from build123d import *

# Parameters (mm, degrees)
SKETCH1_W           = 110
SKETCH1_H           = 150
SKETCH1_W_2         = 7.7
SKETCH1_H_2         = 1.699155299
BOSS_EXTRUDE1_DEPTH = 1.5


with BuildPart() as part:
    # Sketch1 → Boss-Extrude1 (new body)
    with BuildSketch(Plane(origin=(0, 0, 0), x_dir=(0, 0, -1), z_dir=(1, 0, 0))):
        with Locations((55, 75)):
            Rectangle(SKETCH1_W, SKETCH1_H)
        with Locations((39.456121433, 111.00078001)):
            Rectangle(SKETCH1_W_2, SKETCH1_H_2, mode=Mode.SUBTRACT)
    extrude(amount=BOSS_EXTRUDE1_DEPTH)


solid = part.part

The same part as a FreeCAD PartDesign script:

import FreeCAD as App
import Part
import Sketcher
from FreeCAD import Vector
Q = App.Units.Quantity

doc = App.newDocument("Part")
params = doc.addObject("Spreadsheet::Sheet", "Params")
for row, (alias, value) in enumerate([
    ("sketch1_width", "150 mm"),
    ("sketch1_height", "110 mm"),
    ("sketch1_height2", "7.7 mm"),
    ("pad1_length", "1.5 mm"),
], start=1):
    params.set(f"A{row}", alias)
    params.set(f"B{row}", "=" + value)
    params.setAlias(f"B{row}", alias)

body = doc.addObject("PartDesign::Body", "Body")

# Sketch on YZ plane
sketch1 = body.newObject("Sketcher::SketchObject", "Sketch")
sketch1.AttachmentSupport = (doc.getObject("YZ_Plane"), [""])
sketch1.MapMode = "FlatFace"
sketch1.addGeometry([
    Part.LineSegment(Vector(150, 0, 0), Vector(0, 0, 0)),  # 0
    Part.LineSegment(Vector(0, 0, 0), Vector(0, -110, 0)),  # 1
    Part.LineSegment(Vector(0, -110, 0), Vector(150, -110, 0)),  # 2
    Part.LineSegment(Vector(150, -110, 0), Vector(150, 0, 0)),  # 3
    Part.LineSegment(Vector(110.151202, -43.306121, 0), Vector(110.151202, -35.606121, 0)),  # 4
    Part.LineSegment(Vector(110.151202, -35.606121, 0), Vector(111.850358, -35.606121, 0)),  # 5
    Part.LineSegment(Vector(111.850358, -35.606121, 0), Vector(111.850358, -43.306121, 0)),  # 6
    Part.LineSegment(Vector(111.850358, -43.306121, 0), Vector(110.151202, -43.306121, 0)),  # 7
], False)
sketch1.addConstraint([
    Sketcher.Constraint("Coincident", 0, 2, 1, 1),
    Sketcher.Constraint("Coincident", 1, 2, 2, 1),
    Sketcher.Constraint("Coincident", 2, 2, 3, 1),
    Sketcher.Constraint("Coincident", 3, 2, 0, 1),
    Sketcher.Constraint("Coincident", 4, 2, 5, 1),
    Sketcher.Constraint("Coincident", 5, 2, 6, 1),
    Sketcher.Constraint("Coincident", 6, 2, 7, 1),
    Sketcher.Constraint("Coincident", 7, 2, 4, 1),
    Sketcher.Constraint("Horizontal", 0),
    Sketcher.Constraint("Vertical", 1),
    Sketcher.Constraint("Horizontal", 2),
    Sketcher.Constraint("Vertical", 3),
    Sketcher.Constraint("Vertical", 4),
    Sketcher.Constraint("Horizontal", 5),
    Sketcher.Constraint("Vertical", 6),
    Sketcher.Constraint("Horizontal", 7),
    Sketcher.Constraint("Coincident", 0, 2, -1, 1),
    Sketcher.Constraint("DistanceX", 0, 2, 0, 1, Q("150 mm")),
    Sketcher.Constraint("DistanceY", 1, 2, 1, 1, Q("110 mm")),
    Sketcher.Constraint("DistanceY", 4, 1, 4, 2, Q("7.7 mm")),
    Sketcher.Constraint("DistanceX", 5, 1, 5, 2, Q("1.699155 mm")),
    Sketcher.Constraint("DistanceY", 4, 2, -1, 1, Q("35.606121 mm")),
    Sketcher.Constraint("DistanceX", -1, 1, 4, 2, Q("110.151202 mm")),
])
sketch1.setExpression("Constraints[17]", "Params.sketch1_width")
sketch1.setExpression("Constraints[18]", "Params.sketch1_height")
sketch1.setExpression("Constraints[19]", "Params.sketch1_height2")
pad1 = body.newObject("PartDesign::Pad", "Pad")
pad1.Profile = sketch1
pad1.setExpression("Length", "Params.pad1_length")

doc.recompute()
